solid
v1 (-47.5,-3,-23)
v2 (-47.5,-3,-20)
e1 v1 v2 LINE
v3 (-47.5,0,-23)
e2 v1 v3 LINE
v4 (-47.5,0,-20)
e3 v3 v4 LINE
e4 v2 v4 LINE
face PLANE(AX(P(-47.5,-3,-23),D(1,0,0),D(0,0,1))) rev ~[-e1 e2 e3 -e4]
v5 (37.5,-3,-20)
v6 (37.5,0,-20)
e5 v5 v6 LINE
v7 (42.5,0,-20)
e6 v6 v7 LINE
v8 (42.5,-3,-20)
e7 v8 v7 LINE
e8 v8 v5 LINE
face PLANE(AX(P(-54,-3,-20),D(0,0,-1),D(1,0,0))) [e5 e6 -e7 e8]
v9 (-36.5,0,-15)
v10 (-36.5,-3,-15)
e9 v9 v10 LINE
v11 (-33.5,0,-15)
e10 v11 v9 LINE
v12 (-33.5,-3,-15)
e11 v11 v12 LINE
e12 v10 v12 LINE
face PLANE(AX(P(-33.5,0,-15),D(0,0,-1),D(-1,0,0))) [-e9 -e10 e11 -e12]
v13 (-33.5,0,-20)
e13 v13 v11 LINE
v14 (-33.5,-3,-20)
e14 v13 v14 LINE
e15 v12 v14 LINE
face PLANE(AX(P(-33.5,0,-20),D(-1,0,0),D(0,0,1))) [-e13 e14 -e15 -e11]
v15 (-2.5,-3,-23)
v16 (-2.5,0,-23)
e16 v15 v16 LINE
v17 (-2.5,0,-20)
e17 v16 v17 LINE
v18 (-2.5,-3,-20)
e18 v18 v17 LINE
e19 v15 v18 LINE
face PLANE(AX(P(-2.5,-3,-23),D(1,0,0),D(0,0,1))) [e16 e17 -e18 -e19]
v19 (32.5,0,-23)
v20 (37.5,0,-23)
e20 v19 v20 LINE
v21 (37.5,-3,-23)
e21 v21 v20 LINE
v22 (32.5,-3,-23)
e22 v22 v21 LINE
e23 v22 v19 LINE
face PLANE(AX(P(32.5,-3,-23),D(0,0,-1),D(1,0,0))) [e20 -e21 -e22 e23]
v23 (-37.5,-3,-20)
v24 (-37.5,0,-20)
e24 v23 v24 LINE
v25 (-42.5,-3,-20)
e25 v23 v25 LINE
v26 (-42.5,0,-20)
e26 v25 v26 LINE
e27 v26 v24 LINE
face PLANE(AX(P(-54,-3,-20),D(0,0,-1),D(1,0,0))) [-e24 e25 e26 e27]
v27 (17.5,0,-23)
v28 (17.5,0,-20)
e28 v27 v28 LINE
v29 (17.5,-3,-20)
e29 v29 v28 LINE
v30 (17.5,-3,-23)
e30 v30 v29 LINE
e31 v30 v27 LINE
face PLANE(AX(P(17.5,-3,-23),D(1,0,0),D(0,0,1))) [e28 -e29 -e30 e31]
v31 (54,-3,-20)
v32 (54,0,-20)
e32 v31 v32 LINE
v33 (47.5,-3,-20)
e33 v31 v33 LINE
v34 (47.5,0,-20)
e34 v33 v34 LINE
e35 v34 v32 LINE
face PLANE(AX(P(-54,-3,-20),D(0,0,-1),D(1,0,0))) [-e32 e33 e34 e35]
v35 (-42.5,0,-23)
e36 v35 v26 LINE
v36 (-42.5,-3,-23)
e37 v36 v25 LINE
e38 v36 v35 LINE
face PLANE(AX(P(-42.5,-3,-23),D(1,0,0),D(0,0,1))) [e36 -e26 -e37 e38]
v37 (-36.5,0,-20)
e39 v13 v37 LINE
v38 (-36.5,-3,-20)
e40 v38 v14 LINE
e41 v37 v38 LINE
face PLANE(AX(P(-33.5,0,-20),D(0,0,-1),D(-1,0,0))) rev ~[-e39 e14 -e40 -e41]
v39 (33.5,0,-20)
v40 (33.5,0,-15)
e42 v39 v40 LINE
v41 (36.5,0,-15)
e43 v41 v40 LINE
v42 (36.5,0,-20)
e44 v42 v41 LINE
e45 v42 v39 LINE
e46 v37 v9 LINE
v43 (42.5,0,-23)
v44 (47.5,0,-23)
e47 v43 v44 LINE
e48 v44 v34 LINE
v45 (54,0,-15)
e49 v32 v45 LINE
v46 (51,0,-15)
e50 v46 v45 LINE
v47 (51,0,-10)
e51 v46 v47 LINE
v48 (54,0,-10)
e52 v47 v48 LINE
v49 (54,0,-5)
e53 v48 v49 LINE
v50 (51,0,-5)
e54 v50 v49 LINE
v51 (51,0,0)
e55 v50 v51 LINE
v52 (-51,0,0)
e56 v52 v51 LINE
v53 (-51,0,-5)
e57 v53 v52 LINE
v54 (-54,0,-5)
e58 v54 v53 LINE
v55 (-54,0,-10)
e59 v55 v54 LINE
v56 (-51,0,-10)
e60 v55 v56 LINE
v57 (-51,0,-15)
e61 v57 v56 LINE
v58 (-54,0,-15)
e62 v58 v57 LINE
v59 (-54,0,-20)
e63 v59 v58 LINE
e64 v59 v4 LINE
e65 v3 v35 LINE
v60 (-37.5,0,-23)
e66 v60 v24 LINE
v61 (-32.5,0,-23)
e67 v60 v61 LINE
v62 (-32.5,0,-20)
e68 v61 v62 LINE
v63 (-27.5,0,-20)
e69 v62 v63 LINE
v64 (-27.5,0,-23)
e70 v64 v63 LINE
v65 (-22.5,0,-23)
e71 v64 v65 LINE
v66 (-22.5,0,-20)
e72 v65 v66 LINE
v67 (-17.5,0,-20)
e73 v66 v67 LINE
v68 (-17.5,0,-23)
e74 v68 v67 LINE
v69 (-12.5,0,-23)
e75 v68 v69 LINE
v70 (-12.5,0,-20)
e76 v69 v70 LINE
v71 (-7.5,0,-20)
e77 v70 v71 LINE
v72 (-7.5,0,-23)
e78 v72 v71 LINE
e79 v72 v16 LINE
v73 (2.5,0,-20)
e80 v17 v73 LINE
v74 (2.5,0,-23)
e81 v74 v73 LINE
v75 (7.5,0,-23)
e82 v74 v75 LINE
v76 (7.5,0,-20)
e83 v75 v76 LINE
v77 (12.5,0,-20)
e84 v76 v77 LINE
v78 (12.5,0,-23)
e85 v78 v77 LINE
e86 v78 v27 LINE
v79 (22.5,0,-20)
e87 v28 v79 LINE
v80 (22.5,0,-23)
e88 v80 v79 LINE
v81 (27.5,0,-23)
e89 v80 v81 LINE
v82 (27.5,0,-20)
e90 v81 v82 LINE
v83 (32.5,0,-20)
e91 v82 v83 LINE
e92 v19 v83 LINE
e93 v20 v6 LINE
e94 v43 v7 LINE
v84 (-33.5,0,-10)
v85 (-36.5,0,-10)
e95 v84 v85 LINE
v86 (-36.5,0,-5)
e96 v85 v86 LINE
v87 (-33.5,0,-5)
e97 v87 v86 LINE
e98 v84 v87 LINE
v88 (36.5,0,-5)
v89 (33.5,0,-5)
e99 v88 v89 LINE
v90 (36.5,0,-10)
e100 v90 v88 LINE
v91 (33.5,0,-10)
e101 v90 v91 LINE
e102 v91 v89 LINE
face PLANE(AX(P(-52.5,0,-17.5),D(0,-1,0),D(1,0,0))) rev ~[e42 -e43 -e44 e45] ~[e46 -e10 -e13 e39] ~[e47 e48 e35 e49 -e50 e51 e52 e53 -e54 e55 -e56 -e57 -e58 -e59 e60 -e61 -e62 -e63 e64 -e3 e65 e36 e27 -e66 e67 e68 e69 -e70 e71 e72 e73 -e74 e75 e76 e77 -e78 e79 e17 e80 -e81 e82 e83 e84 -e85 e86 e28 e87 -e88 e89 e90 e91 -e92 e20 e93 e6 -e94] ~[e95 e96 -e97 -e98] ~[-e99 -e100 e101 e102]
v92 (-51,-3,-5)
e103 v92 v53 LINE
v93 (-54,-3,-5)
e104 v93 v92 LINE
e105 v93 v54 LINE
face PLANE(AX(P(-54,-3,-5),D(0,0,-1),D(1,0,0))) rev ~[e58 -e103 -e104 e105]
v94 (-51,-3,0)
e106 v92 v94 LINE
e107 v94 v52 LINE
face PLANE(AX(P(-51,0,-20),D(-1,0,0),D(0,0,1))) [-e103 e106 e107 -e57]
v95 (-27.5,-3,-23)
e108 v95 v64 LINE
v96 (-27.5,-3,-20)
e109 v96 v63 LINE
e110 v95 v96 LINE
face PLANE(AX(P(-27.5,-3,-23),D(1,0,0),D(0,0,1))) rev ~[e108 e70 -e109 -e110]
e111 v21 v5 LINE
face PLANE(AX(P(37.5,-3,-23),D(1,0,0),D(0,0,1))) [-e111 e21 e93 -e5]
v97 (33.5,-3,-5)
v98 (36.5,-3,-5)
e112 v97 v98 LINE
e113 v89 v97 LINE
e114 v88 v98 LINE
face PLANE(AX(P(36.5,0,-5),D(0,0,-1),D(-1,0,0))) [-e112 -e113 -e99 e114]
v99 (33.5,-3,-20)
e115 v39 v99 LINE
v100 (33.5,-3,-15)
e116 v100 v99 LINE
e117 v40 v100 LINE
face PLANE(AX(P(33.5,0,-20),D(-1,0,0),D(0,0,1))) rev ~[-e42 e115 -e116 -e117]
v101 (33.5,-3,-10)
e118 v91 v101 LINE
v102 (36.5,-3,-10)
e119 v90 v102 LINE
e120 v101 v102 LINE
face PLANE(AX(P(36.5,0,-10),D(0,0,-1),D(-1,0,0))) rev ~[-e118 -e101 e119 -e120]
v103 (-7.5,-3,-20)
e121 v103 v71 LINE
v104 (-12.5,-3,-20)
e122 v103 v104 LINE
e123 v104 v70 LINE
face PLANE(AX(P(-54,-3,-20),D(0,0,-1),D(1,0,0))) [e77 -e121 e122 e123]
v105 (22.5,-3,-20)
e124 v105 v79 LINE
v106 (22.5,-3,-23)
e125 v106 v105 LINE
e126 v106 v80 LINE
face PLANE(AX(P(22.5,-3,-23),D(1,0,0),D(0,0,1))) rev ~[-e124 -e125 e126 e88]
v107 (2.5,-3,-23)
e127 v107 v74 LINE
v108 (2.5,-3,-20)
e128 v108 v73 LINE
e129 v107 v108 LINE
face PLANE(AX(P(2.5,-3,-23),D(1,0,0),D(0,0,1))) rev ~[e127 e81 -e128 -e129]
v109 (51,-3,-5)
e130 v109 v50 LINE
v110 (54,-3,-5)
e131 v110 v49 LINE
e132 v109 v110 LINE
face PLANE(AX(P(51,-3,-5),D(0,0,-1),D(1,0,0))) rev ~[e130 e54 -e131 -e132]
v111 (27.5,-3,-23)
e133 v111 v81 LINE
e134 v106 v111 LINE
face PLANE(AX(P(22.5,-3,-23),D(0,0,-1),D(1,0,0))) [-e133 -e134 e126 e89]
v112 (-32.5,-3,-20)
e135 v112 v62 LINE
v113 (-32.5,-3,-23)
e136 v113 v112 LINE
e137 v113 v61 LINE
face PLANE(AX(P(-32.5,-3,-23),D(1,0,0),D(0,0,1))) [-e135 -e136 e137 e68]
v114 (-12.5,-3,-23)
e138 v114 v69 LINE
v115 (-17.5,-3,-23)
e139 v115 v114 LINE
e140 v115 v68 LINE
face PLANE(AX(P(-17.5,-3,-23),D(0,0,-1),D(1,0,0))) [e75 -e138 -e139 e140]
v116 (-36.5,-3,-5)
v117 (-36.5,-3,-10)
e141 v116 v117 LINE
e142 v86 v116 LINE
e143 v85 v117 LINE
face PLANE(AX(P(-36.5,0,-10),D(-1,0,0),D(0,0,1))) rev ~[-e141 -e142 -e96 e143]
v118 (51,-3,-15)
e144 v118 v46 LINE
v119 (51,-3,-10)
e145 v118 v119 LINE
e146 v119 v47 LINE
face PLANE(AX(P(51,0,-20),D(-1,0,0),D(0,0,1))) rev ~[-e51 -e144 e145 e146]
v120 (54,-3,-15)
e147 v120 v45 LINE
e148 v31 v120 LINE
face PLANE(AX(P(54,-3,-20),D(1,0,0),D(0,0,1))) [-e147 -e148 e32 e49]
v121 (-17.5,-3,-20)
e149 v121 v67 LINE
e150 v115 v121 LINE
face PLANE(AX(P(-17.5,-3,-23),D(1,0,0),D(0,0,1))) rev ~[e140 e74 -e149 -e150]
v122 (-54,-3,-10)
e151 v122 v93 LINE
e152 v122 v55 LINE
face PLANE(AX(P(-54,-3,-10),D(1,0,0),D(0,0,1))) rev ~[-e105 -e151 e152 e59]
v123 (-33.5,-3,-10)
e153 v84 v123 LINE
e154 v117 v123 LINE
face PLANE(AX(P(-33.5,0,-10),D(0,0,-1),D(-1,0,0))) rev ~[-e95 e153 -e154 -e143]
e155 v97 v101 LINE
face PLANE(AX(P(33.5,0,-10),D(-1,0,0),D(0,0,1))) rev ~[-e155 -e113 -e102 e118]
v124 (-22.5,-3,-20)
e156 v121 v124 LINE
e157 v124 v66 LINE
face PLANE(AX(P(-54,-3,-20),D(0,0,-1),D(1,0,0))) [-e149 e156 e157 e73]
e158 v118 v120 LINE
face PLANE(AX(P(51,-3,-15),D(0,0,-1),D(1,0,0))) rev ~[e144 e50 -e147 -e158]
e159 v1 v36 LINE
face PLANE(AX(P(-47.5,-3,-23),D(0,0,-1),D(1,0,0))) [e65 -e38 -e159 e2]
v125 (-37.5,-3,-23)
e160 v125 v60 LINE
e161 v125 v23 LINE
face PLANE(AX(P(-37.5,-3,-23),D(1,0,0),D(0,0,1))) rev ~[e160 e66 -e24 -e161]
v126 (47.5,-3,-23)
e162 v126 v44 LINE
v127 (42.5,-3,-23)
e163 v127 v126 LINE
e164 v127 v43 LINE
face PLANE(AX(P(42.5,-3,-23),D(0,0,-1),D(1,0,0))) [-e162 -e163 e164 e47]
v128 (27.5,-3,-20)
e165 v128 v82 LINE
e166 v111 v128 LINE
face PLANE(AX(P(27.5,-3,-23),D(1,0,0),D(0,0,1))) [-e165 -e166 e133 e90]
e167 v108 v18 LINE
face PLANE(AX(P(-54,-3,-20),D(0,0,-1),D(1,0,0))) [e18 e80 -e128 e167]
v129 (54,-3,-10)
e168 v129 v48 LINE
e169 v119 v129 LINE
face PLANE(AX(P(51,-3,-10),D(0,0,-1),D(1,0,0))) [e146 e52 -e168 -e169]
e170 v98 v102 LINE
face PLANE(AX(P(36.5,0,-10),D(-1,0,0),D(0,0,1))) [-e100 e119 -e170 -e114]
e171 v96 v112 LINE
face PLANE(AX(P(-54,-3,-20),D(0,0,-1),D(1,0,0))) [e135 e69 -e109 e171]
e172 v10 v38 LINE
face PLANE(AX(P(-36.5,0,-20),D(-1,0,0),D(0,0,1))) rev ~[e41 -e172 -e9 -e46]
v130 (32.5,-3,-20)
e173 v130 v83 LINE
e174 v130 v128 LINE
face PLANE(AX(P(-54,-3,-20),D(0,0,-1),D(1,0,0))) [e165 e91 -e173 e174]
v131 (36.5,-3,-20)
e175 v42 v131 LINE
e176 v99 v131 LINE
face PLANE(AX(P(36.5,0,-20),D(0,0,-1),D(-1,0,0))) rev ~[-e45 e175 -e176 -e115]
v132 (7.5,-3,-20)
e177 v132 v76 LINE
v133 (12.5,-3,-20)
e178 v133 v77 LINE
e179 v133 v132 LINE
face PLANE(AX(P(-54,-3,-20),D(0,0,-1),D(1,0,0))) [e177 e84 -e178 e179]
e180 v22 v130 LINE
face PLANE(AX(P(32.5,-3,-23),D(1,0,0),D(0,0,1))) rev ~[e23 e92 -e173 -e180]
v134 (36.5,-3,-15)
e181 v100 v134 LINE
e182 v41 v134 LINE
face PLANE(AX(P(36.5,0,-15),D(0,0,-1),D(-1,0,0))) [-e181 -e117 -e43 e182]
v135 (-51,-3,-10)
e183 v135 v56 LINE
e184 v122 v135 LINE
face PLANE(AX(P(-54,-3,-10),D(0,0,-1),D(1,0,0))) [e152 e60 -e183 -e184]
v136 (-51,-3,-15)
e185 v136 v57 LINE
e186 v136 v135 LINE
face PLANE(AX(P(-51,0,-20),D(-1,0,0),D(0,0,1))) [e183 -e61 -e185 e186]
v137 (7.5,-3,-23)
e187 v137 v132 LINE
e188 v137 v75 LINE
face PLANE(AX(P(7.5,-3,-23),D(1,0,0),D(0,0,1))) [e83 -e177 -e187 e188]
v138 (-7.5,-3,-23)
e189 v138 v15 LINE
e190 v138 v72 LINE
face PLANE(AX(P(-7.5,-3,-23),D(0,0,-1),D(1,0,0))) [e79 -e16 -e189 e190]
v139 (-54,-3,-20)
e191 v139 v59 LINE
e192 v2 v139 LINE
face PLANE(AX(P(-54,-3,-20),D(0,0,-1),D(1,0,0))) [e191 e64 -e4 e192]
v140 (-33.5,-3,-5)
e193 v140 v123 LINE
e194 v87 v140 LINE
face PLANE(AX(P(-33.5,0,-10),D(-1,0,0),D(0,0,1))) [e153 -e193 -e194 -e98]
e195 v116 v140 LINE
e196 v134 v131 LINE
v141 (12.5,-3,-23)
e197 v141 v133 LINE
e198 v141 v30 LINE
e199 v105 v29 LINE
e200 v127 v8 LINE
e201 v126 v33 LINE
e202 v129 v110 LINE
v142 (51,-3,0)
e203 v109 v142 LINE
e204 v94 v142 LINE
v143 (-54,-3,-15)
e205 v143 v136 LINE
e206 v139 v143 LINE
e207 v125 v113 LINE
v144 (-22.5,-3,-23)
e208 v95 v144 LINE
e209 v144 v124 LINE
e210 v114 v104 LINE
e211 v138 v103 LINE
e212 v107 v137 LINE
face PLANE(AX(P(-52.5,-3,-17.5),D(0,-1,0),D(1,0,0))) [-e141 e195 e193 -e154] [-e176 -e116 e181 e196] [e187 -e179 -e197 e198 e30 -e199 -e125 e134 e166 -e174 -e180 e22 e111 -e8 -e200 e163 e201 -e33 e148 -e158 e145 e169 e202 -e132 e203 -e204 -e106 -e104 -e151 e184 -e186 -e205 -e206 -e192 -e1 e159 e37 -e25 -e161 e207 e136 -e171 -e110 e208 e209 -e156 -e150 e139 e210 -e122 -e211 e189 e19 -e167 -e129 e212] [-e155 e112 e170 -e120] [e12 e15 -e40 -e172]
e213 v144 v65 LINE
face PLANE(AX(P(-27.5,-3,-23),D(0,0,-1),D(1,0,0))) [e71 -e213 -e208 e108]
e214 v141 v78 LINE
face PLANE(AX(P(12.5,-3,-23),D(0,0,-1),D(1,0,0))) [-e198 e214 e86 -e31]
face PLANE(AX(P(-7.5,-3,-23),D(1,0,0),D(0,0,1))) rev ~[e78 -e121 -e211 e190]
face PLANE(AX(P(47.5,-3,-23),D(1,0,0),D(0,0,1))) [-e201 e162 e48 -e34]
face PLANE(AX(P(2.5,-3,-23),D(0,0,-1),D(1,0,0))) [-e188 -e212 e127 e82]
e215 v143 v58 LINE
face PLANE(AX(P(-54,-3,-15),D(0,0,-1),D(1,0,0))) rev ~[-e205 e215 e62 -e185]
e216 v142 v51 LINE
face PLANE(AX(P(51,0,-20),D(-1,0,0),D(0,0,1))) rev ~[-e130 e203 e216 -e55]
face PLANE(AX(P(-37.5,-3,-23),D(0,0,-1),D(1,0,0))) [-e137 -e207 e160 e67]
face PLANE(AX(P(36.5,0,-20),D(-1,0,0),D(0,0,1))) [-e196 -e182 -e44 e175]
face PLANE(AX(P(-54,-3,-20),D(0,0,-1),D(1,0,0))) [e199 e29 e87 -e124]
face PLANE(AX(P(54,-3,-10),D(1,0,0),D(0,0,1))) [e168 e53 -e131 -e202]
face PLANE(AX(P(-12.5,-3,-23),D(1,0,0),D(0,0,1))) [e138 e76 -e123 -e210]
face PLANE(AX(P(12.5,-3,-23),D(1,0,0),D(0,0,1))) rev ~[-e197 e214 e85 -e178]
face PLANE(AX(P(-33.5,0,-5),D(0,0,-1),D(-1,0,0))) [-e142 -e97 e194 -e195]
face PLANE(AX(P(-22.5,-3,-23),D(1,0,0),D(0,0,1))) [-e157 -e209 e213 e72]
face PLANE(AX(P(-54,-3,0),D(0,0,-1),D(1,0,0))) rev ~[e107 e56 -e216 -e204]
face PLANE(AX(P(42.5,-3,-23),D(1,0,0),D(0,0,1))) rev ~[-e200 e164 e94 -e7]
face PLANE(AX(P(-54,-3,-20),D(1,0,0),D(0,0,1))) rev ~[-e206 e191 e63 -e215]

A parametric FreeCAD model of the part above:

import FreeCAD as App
import Part
import Sketcher
Q = App.Units.Quantity

doc = App.newDocument("Part")
params = doc.addObject("Spreadsheet::Sheet", "Params")
for row, (alias, value) in enumerate([
    ("sketch1_width", "102 mm"),
    ("sketch1_height", "40 mm"),
    ("pad1_length", "3 mm"),
    ("sketch2_width", "3 mm"),
    ("sketch2_height", "5 mm"),
    ("pad2_length", "3 mm"),
    ("sketch3_width", "5 mm"),
    ("sketch3_height", "3 mm"),
    ("pad3_length", "3 mm"),
    ("pocket1_length", "25 mm"),
    ("sketch5_width", "3 mm"),
    ("sketch5_height", "5 mm"),
    ("pocket2_length", "25 mm"),
], start=1):
    params.set(f"A{row}", alias)
    params.set(f"B{row}", "=" + value)
    params.setAlias(f"B{row}", alias)

body = doc.addObject("PartDesign::Body", "Body")

# Sketch on XZ plane
sketch1 = doc.addObject("Sketcher::SketchObject", "Sketch")
body.addObject(sketch1)
sketch1.AttachmentSupport = (doc.XZ_Plane, [""])
sketch1.MapMode = "FlatFace"
sketch1.addGeometry(Part.LineSegment(App.Vector(-51, 20, 0), App.Vector(-51, -20, 0)), False)
sketch1.addGeometry(Part.LineSegment(App.Vector(-51, -20, 0), App.Vector(51, -20, 0)), False)
sketch1.addGeometry(Part.LineSegment(App.Vector(51, -20, 0), App.Vector(51, 20, 0)), False)
sketch1.addGeometry(Part.LineSegment(App.Vector(51, 20, 0), App.Vector(-51, 20, 0)), False)
sketch1.addConstraint(Sketcher.Constraint("Coincident", 0, 2, 1, 1))
sketch1.addConstraint(Sketcher.Constraint("Coincident", 1, 2, 2, 1))
sketch1.addConstraint(Sketcher.Constraint("Coincident", 2, 2, 3, 1))
sketch1.addConstraint(Sketcher.Constraint("Coincident", 3, 2, 0, 1))
sketch1.addConstraint(Sketcher.Constraint("Vertical", 0))
sketch1.addConstraint(Sketcher.Constraint("Horizontal", 1))
sketch1.addConstraint(Sketcher.Constraint("Vertical", 2))
sketch1.addConstraint(Sketcher.Constraint("Horizontal", 3))
sketch1.addConstraint(Sketcher.Constraint("Symmetric", 0, 2, 2, 2, -1, 1))
sketch1.addConstraint(Sketcher.Constraint("DistanceX", 1, 1, 1, 2, Q("102 mm")))
sketch1.addConstraint(Sketcher.Constraint("DistanceY", 0, 2, 0, 1, Q("40 mm")))
sketch1.setExpression("Constraints[9]", "Params.sketch1_width")
sketch1.setExpression("Constraints[10]", "Params.sketch1_height")
pad1 = doc.addObject("PartDesign::Pad", "Pad")
body.addObject(pad1)
pad1.Profile = sketch1
pad1.setExpression("Length", "Params.pad1_length")

# Sketch on XZ plane
sketch2 = doc.addObject("Sketcher::SketchObject", "Sketch001")
body.addObject(sketch2)
sketch2.AttachmentSupport = (doc.XZ_Plane, [""])
sketch2.MapMode = "FlatFace"
sketch2.AttachmentOffset = App.Placement(App.Vector(0, 0, 3), App.Rotation())
sketch2.addGeometry(Part.LineSegment(App.Vector(-54, -15, 0), App.Vector(-54, -20, 0)), False)
sketch2.addGeometry(Part.LineSegment(App.Vector(-54, -20, 0), App.Vector(-51, -20, 0)), False)
sketch2.addGeometry(Part.LineSegment(App.Vector(-51, -20, 0), App.Vector(-51, -15, 0)), False)
sketch2.addGeometry(Part.LineSegment(App.Vector(-51, -15, 0), App.Vector(-54, -15, 0)), False)
sketch2.addGeometry(Part.LineSegment(App.Vector(-54, -5, 0), App.Vector(-54, -10, 0)), False)
sketch2.addGeometry(Part.LineSegment(App.Vector(-54, -10, 0), App.Vector(-51, -10, 0)), False)
sketch2.addGeometry(Part.LineSegment(App.Vector(-51, -10, 0), App.Vector(-51, -5, 0)), False)
sketch2.addGeometry(Part.LineSegment(App.Vector(-51, -5, 0), App.Vector(-54, -5, 0)), False)
sketch2.addGeometry(Part.LineSegment(App.Vector(-54, 5, 0), App.Vector(-54, 0, 0)), False)
sketch2.addGeometry(Part.LineSegment(App.Vector(-54, 0, 0), App.Vector(-51, 0, 0)), False)
sketch2.addGeometry(Part.LineSegment(App.Vector(-51, 0, 0), App.Vector(-51, 5, 0)), False)
sketch2.addGeometry(Part.LineSegment(App.Vector(-51, 5, 0), App.Vector(-54, 5, 0)), False)
sketch2.addGeometry(Part.LineSegment(App.Vector(-54, 15, 0), App.Vector(-54, 10, 0)), False)
sketch2.addGeometry(Part.LineSegment(App.Vector(-54, 10, 0), App.Vector(-51, 10, 0)), False)
sketch2.addGeometry(Part.LineSegment(App.Vector(-51, 10, 0), App.Vector(-51, 15, 0)), False)
sketch2.addGeometry(Part.LineSegment(App.Vector(-51, 15, 0), App.Vector(-54, 15, 0)), False)
sketch2.addGeometry(Part.LineSegment(App.Vector(51, -5, 0), App.Vector(51, -10, 0)), False)
sketch2.addGeometry(Part.LineSegment(App.Vector(51, -10, 0), App.Vector(54, -10, 0)), False)
sketch2.addGeometry(Part.LineSegment(App.Vector(54, -10, 0), App.Vector(54, -5, 0)), False)
sketch2.addGeometry(Part.LineSegment(App.Vector(54, -5, 0), App.Vector(51, -5, 0)), False)
sketch2.addGeometry(Part.LineSegment(App.Vector(51, -15, 0), App.Vector(51, -20, 0)), False)
sketch2.addGeometry(Part.LineSegment(App.Vector(51, -20, 0), App.Vector(54, -20, 0)), False)
sketch2.addGeometry(Part.LineSegment(App.Vector(54, -20, 0), App.Vector(54, -15, 0)), False)
sketch2.addGeometry(Part.LineSegment(App.Vector(54, -15, 0), App.Vector(51, -15, 0)), False)
sketch2.addGeometry(Part.LineSegment(App.Vector(51, 15, 0), App.Vector(51, 10, 0)), False)
sketch2.addGeometry(Part.LineSegment(App.Vector(51, 10, 0), App.Vector(54, 10, 0)), False)
sketch2.addGeometry(Part.LineSegment(App.Vector(54, 10, 0), App.Vector(54, 15, 0)), False)
sketch2.addGeometry(Part.LineSegment(App.Vector(54, 15, 0), App.Vector(51, 15, 0)), False)
sketch2.addGeometry(Part.LineSegment(App.Vector(51, 5, 0), App.Vector(51, 0, 0)), False)
sketch2.addGeometry(Part.LineSegment(App.Vector(51, 0, 0), App.Vector(54, 0, 0)), False)
sketch2.addGeometry(Part.LineSegment(App.Vector(54, 0, 0), App.Vector(54, 5, 0)), False)
sketch2.addGeometry(Part.LineSegment(App.Vector(54, 5, 0), App.Vector(51, 5, 0)), False)
sketch2.addConstraint(Sketcher.Constraint("Coincident", 0, 2, 1, 1))
sketch2.addConstraint(Sketcher.Constraint("Coincident", 1, 2, 2, 1))
sketch2.addConstraint(Sketcher.Constraint("Coincident", 2, 2, 3, 1))
sketch2.addConstraint(Sketcher.Constraint("Coincident", 3, 2, 0, 1))
sketch2.addConstraint(Sketcher.Constraint("Coincident", 4, 2, 5, 1))
sketch2.addConstraint(Sketcher.Constraint("Coincident", 5, 2, 6, 1))
sketch2.addConstraint(Sketcher.Constraint("Coincident", 6, 2, 7, 1))
sketch2.addConstraint(Sketcher.Constraint("Coincident", 7, 2, 4, 1))
sketch2.addConstraint(Sketcher.Constraint("Coincident", 8, 2, 9, 1))
sketch2.addConstraint(Sketcher.Constraint("Coincident", 9, 2, 10, 1))
sketch2.addConstraint(Sketcher.Constraint("Coincident", 10, 2, 11, 1))
sketch2.addConstraint(Sketcher.Constraint("Coincident", 11, 2, 8, 1))
sketch2.addConstraint(Sketcher.Constraint("Coincident", 12, 2, 13, 1))
sketch2.addConstraint(Sketcher.Constraint("Coincident", 13, 2, 14, 1))
sketch2.addConstraint(Sketcher.Constraint("Coincident", 14, 2, 15, 1))
sketch2.addConstraint(Sketcher.Constraint("Coincident", 15, 2, 12, 1))
sketch2.addConstraint(Sketcher.Constraint("Coincident", 16, 2, 17, 1))
sketch2.addConstraint(Sketcher.Constraint("Coincident", 17, 2, 18, 1))
sketch2.addConstraint(Sketcher.Constraint("Coincident", 18, 2, 19, 1))
sketch2.addConstraint(Sketcher.Constraint("Coincident", 19, 2, 16, 1))
sketch2.addConstraint(Sketcher.Constraint("Coincident", 20, 2, 21, 1))
sketch2.addConstraint(Sketcher.Constraint("Coincident", 21, 2, 22, 1))
sketch2.addConstraint(Sketcher.Constraint("Coincident", 22, 2, 23, 1))
sketch2.addConstraint(Sketcher.Constraint("Coincident", 23, 2, 20, 1))
sketch2.addConstraint(Sketcher.Constraint("Coincident", 24, 2, 25, 1))
sketch2.addConstraint(Sketcher.Constraint("Coincident", 25, 2, 26, 1))
sketch2.addConstraint(Sketcher.Constraint("Coincident", 26, 2, 27, 1))
sketch2.addConstraint(Sketcher.Constraint("Coincident", 27, 2, 24, 1))
sketch2.addConstraint(Sketcher.Constraint("Coincident", 28, 2, 29, 1))
sketch2.addConstraint(Sketcher.Constraint("Coincident", 29, 2, 30, 1))
sketch2.addConstraint(Sketcher.Constraint("Coincident", 30, 2, 31, 1))
sketch2.addConstraint(Sketcher.Constraint("Coincident", 31, 2, 28, 1))
sketch2.addConstraint(Sketcher.Constraint("Vertical", 0))
sketch2.addConstraint(Sketcher.Constraint("Horizontal", 1))
sketch2.addConstraint(Sketcher.Constraint("Vertical", 2))
sketch2.addConstraint(Sketcher.Constraint("Horizontal", 3))
sketch2.addConstraint(Sketcher.Constraint("Vertical", 4))
sketch2.addConstraint(Sketcher.Constraint("Horizontal", 5))
sketch2.addConstraint(Sketcher.Constraint("Vertical", 6))
sketch2.addConstraint(Sketcher.Constraint("Horizontal", 7))
sketch2.addConstraint(Sketcher.Constraint("Vertical", 8))
sketch2.addConstraint(Sketcher.Constraint("Horizontal", 9))
sketch2.addConstraint(Sketcher.Constraint("Vertical", 10))
sketch2.addConstraint(Sketcher.Constraint("Horizontal", 11))
sketch2.addConstraint(Sketcher.Constraint("Vertical", 12))
sketch2.addConstraint(Sketcher.Constraint("Horizontal", 13))
sketch2.addConstraint(Sketcher.Constraint("Vertical", 14))
sketch2.addConstraint(Sketcher.Constraint("Horizontal", 15))
sketch2.addConstraint(Sketcher.Constraint("Vertical", 16))
sketch2.addConstraint(Sketcher.Constraint("Horizontal", 17))
sketch2.addConstraint(Sketcher.Constraint("Vertical", 18))
sketch2.addConstraint(Sketcher.Constraint("Horizontal", 19))
sketch2.addConstraint(Sketcher.Constraint("Vertical", 20))
sketch2.addConstraint(Sketcher.Constraint("Horizontal", 21))
sketch2.addConstraint(Sketcher.Constraint("Vertical", 22))
sketch2.addConstraint(Sketcher.Constraint("Horizontal", 23))
sketch2.addConstraint(Sketcher.Constraint("Vertical", 24))
sketch2.addConstraint(Sketcher.Constraint("Horizontal", 25))
sketch2.addConstraint(Sketcher.Constraint("Vertical", 26))
sketch2.addConstraint(Sketcher.Constraint("Horizontal", 27))
sketch2.addConstraint(Sketcher.Constraint("Vertical", 28))
sketch2.addConstraint(Sketcher.Constraint("Horizontal", 29))
sketch2.addConstraint(Sketcher.Constraint("Vertical", 30))
sketch2.addConstraint(Sketcher.Constraint("Horizontal", 31))
sketch2.addConstraint(Sketcher.Constraint("Symmetric", 13, 2, 16, 2, -1, 1))
sketch2.addConstraint(Sketcher.Constraint("Symmetric", 11, 2, 18, 2, -1, 1))
sketch2.addConstraint(Sketcher.Constraint("Symmetric", 15, 2, 22, 2, -1, 1))
sketch2.addConstraint(Sketcher.Constraint("Symmetric", 5, 2, 24, 2, -1, 1))
sketch2.addConstraint(Sketcher.Constraint("Symmetric", 3, 2, 26, 2, -1, 1))
sketch2.addConstraint(Sketcher.Constraint("Symmetric", 9, 2, 28, 2, -1, 1))
sketch2.addConstraint(Sketcher.Constraint("Symmetric", 7, 2, 30, 2, -1, 1))
sketch2.addConstraint(Sketcher.Constraint("Symmetric", 5, 2, 16, 2, -2))
sketch2.addConstraint(Sketcher.Constraint("Symmetric", 7, 2, 18, 2, -2))
sketch2.addConstraint(Sketcher.Constraint("Symmetric", 1, 2, 20, 2, -2))
sketch2.addConstraint(Sketcher.Constraint("Symmetric", 3, 2, 22, 2, -2))
sketch2.addConstraint(Sketcher.Constraint("PointOnObject", 8, 2, -1))
sketch2.addConstraint(Sketcher.Constraint("Vertical", 3, 2, 4, 2))
sketch2.addConstraint(Sketcher.Constraint("Vertical", 2, 2, 5, 2))
sketch2.addConstraint(Sketcher.Constraint("Vertical", 6, 2, 9, 2))
sketch2.addConstraint(Sketcher.Constraint("Equal", 2, 4))
sketch2.addConstraint(Sketcher.Constraint("Equal", 6, 8))
sketch2.addConstraint(Sketcher.Constraint("Equal", 10, 12))
sketch2.addConstraint(Sketcher.Constraint("DistanceX", 1, 1, 1, 2, Q("3 mm")))
sketch2.addConstraint(Sketcher.Constraint("DistanceY", 0, 2, 0, 1, Q("5 mm")))
sketch2.addConstraint(Sketcher.Constraint("DistanceX", 0, 2, -1, 1, Q("54 mm")))
sketch2.setExpression("Constraints[82]", "Params.sketch2_width")
sketch2.setExpression("Constraints[83]", "Params.sketch2_height")
pad2 = doc.addObject("PartDesign::Pad", "Pad001")
body.addObject(pad2)
pad2.Profile = sketch2
pad2.setExpression("Length", "Params.pad2_length")
pad2.Reversed = True

# Sketch on XZ plane
sketch3 = doc.addObject("Sketcher::SketchObject", "Sketch002")
body.addObject(sketch3)
sketch3.AttachmentSupport = (doc.XZ_Plane, [""])
sketch3.MapMode = "FlatFace"
sketch3.AttachmentOffset = App.Placement(App.Vector(0, 0, 3), App.Rotation())
sketch3.addGeometry(Part.LineSegment(App.Vector(2.5, -20, 0), App.Vector(2.5, -23, 0)), False)
sketch3.addGeometry(Part.LineSegment(App.Vector(2.5, -23, 0), App.Vector(7.5, -23, 0)), False)
sketch3.addGeometry(Part.LineSegment(App.Vector(7.5, -23, 0), App.Vector(7.5, -20, 0)), False)
sketch3.addGeometry(Part.LineSegment(App.Vector(7.5, -20, 0), App.Vector(2.5, -20, 0)), False)
sketch3.addGeometry(Part.LineSegment(App.Vector(12.5, -20, 0), App.Vector(12.5, -23, 0)), False)
sketch3.addGeometry(Part.LineSegment(App.Vector(12.5, -23, 0), App.Vector(17.5, -23, 0)), False)
sketch3.addGeometry(Part.LineSegment(App.Vector(17.5, -23, 0), App.Vector(17.5, -20, 0)), False)
sketch3.addGeometry(Part.LineSegment(App.Vector(17.5, -20, 0), App.Vector(12.5, -20, 0)), False)
sketch3.addGeometry(Part.LineSegment(App.Vector(22.5, -20, 0), App.Vector(22.5, -23, 0)), False)
sketch3.addGeometry(Part.LineSegment(App.Vector(22.5, -23, 0), App.Vector(27.5, -23, 0)), False)
sketch3.addGeometry(Part.LineSegment(App.Vector(27.5, -23, 0), App.Vector(27.5, -20, 0)), False)
sketch3.addGeometry(Part.LineSegment(App.Vector(27.5, -20, 0), App.Vector(22.5, -20, 0)), False)
sketch3.addGeometry(Part.LineSegment(App.Vector(32.5, -20, 0), App.Vector(32.5, -23, 0)), False)
sketch3.addGeometry(Part.LineSegment(App.Vector(32.5, -23, 0), App.Vector(37.5, -23, 0)), False)
sketch3.addGeometry(Part.LineSegment(App.Vector(37.5, -23, 0), App.Vector(37.5, -20, 0)), False)
sketch3.addGeometry(Part.LineSegment(App.Vector(37.5, -20, 0), App.Vector(32.5, -20, 0)), False)
sketch3.addGeometry(Part.LineSegment(App.Vector(42.5, -20, 0), App.Vector(42.5, -23, 0)), False)
sketch3.addGeometry(Part.LineSegment(App.Vector(42.5, -23, 0), App.Vector(47.5, -23, 0)), False)
sketch3.addGeometry(Part.LineSegment(App.Vector(47.5, -23, 0), App.Vector(47.5, -20, 0)), False)
sketch3.addGeometry(Part.LineSegment(App.Vector(47.5, -20, 0), App.Vector(42.5, -20, 0)), False)
sketch3.addGeometry(Part.LineSegment(App.Vector(-27.5, -20, 0), App.Vector(-27.5, -23, 0)), False)
sketch3.addGeometry(Part.LineSegment(App.Vector(-27.5, -23, 0), App.Vector(-22.5, -23, 0)), False)
sketch3.addGeometry(Part.LineSegment(App.Vector(-22.5, -23, 0), App.Vector(-22.5, -20, 0)), False)
sketch3.addGeometry(Part.LineSegment(App.Vector(-22.5, -20, 0), App.Vector(-27.5, -20, 0)), False)
sketch3.addGeometry(Part.LineSegment(App.Vector(-17.5, -20, 0), App.Vector(-17.5, -23, 0)), False)
sketch3.addGeometry(Part.LineSegment(App.Vector(-17.5, -23, 0), App.Vector(-12.5, -23, 0)), False)
sketch3.addGeometry(Part.LineSegment(App.Vector(-12.5, -23, 0), App.Vector(-12.5, -20, 0)), False)
sketch3.addGeometry(Part.LineSegment(App.Vector(-12.5, -20, 0), App.Vector(-17.5, -20, 0)), False)
sketch3.addGeometry(Part.LineSegment(App.Vector(-7.5, -20, 0), App.Vector(-7.5, -23, 0)), False)
sketch3.addGeometry(Part.LineSegment(App.Vector(-7.5, -23, 0), App.Vector(-2.5, -23, 0)), False)
sketch3.addGeometry(Part.LineSegment(App.Vector(-2.5, -23, 0), App.Vector(-2.5, -20, 0)), False)
sketch3.addGeometry(Part.LineSegment(App.Vector(-2.5, -20, 0), App.Vector(-7.5, -20, 0)), False)
sketch3.addGeometry(Part.LineSegment(App.Vector(-37.5, -20, 0), App.Vector(-37.5, -23, 0)), False)
sketch3.addGeometry(Part.LineSegment(App.Vector(-37.5, -23, 0), App.Vector(-32.5, -23, 0)), False)
sketch3.addGeometry(Part.LineSegment(App.Vector(-32.5, -23, 0), App.Vector(-32.5, -20, 0)), False)
sketch3.addGeometry(Part.LineSegment(App.Vector(-32.5, -20, 0), App.Vector(-37.5, -20, 0)), False)
sketch3.addGeometry(Part.LineSegment(App.Vector(-47.5, -20, 0), App.Vector(-47.5, -23, 0)), False)
sketch3.addGeometry(Part.LineSegment(App.Vector(-47.5, -23, 0), App.Vector(-42.5, -23, 0)), False)
sketch3.addGeometry(Part.LineSegment(App.Vector(-42.5, -23, 0), App.Vector(-42.5, -20, 0)), False)
sketch3.addGeometry(Part.LineSegment(App.Vector(-42.5, -20, 0), App.Vector(-47.5, -20, 0)), False)
sketch3.addConstraint(Sketcher.Constraint("Coincident", 0, 2, 1, 1))
sketch3.addConstraint(Sketcher.Constraint("Coincident", 1, 2, 2, 1))
sketch3.addConstraint(Sketcher.Constraint("Coincident", 2, 2, 3, 1))
sketch3.addConstraint(Sketcher.Constraint("Coincident", 3, 2, 0, 1))
sketch3.addConstraint(Sketcher.Constraint("Coincident", 4, 2, 5, 1))
sketch3.addConstraint(Sketcher.Constraint("Coincident", 5, 2, 6, 1))
sketch3.addConstraint(Sketcher.Constraint("Coincident", 6, 2, 7, 1))
sketch3.addConstraint(Sketcher.Constraint("Coincident", 7, 2, 4, 1))
sketch3.addConstraint(Sketcher.Constraint("Coincident", 8, 2, 9, 1))
sketch3.addConstraint(Sketcher.Constraint("Coincident", 9, 2, 10, 1))
sketch3.addConstraint(Sketcher.Constraint("Coincident", 10, 2, 11, 1))
sketch3.addConstraint(Sketcher.Constraint("Coincident", 11, 2, 8, 1))
sketch3.addConstraint(Sketcher.Constraint("Coincident", 12, 2, 13, 1))
sketch3.addConstraint(Sketcher.Constraint("Coincident", 13, 2, 14, 1))
sketch3.addConstraint(Sketcher.Constraint("Coincident", 14, 2, 15, 1))
sketch3.addConstraint(Sketcher.Constraint("Coincident", 15, 2, 12, 1))
sketch3.addConstraint(Sketcher.Constraint("Coincident", 16, 2, 17, 1))
sketch3.addConstraint(Sketcher.Constraint("Coincident", 17, 2, 18, 1))
sketch3.addConstraint(Sketcher.Constraint("Coincident", 18, 2, 19, 1))
sketch3.addConstraint(Sketcher.Constraint("Coincident", 19, 2, 16, 1))
sketch3.addConstraint(Sketcher.Constraint("Coincident", 20, 2, 21, 1))
sketch3.addConstraint(Sketcher.Constraint("Coincident", 21, 2, 22, 1))
sketch3.addConstraint(Sketcher.Constraint("Coincident", 22, 2, 23, 1))
sketch3.addConstraint(Sketcher.Constraint("Coincident", 23, 2, 20, 1))
sketch3.addConstraint(Sketcher.Constraint("Coincident", 24, 2, 25, 1))
sketch3.addConstraint(Sketcher.Constraint("Coincident", 25, 2, 26, 1))
sketch3.addConstraint(Sketcher.Constraint("Coincident", 26, 2, 27, 1))
sketch3.addConstraint(Sketcher.Constraint("Coincident", 27, 2, 24, 1))
sketch3.addConstraint(Sketcher.Constraint("Coincident", 28, 2, 29, 1))
sketch3.addConstraint(Sketcher.Constraint("Coincident", 29, 2, 30, 1))
sketch3.addConstraint(Sketcher.Constraint("Coincident", 30, 2, 31, 1))
sketch3.addConstraint(Sketcher.Constraint("Coincident", 31, 2, 28, 1))
sketch3.addConstraint(Sketcher.Constraint("Coincident", 32, 2, 33, 1))
sketch3.addConstraint(Sketcher.Constraint("Coincident", 33, 2, 34, 1))
sketch3.addConstraint(Sketcher.Constraint("Coincident", 34, 2, 35, 1))
sketch3.addConstraint(Sketcher.Constraint("Coincident", 35, 2, 32, 1))
sketch3.addConstraint(Sketcher.Constraint("Coincident", 36, 2, 37, 1))
sketch3.addConstraint(Sketcher.Constraint("Coincident", 37, 2, 38, 1))
sketch3.addConstraint(Sketcher.Constraint("Coincident", 38, 2, 39, 1))
sketch3.addConstraint(Sketcher.Constraint("Coincident", 39, 2, 36, 1))
sketch3.addConstraint(Sketcher.Constraint("Vertical", 0))
sketch3.addConstraint(Sketcher.Constraint("Horizontal", 1))
sketch3.addConstraint(Sketcher.Constraint("Vertical", 2))
sketch3.addConstraint(Sketcher.Constraint("Horizontal", 3))
sketch3.addConstraint(Sketcher.Constraint("Vertical", 4))
sketch3.addConstraint(Sketcher.Constraint("Horizontal", 5))
sketch3.addConstraint(Sketcher.Constraint("Vertical", 6))
sketch3.addConstraint(Sketcher.Constraint("Horizontal", 7))
sketch3.addConstraint(Sketcher.Constraint("Vertical", 8))
sketch3.addConstraint(Sketcher.Constraint("Horizontal", 9))
sketch3.addConstraint(Sketcher.Constraint("Vertical", 10))
sketch3.addConstraint(Sketcher.Constraint("Horizontal", 11))
sketch3.addConstraint(Sketcher.Constraint("Vertical", 12))
sketch3.addConstraint(Sketcher.Constraint("Horizontal", 13))
sketch3.addConstraint(Sketcher.Constraint("Vertical", 14))
sketch3.addConstraint(Sketcher.Constraint("Horizontal", 15))
sketch3.addConstraint(Sketcher.Constraint("Vertical", 16))
sketch3.addConstraint(Sketcher.Constraint("Horizontal", 17))
sketch3.addConstraint(Sketcher.Constraint("Vertical", 18))
sketch3.addConstraint(Sketcher.Constraint("Horizontal", 19))
sketch3.addConstraint(Sketcher.Constraint("Vertical", 20))
sketch3.addConstraint(Sketcher.Constraint("Horizontal", 21))
sketch3.addConstraint(Sketcher.Constraint("Vertical", 22))
sketch3.addConstraint(Sketcher.Constraint("Horizontal", 23))
sketch3.addConstraint(Sketcher.Constraint("Vertical", 24))
sketch3.addConstraint(Sketcher.Constraint("Horizontal", 25))
sketch3.addConstraint(Sketcher.Constraint("Vertical", 26))
sketch3.addConstraint(Sketcher.Constraint("Horizontal", 27))
sketch3.addConstraint(Sketcher.Constraint("Vertical", 28))
sketch3.addConstraint(Sketcher.Constraint("Horizontal", 29))
sketch3.addConstraint(Sketcher.Constraint("Vertical", 30))
sketch3.addConstraint(Sketcher.Constraint("Horizontal", 31))
sketch3.addConstraint(Sketcher.Constraint("Vertical", 32))
sketch3.addConstraint(Sketcher.Constraint("Horizontal", 33))
sketch3.addConstraint(Sketcher.Constraint("Vertical", 34))
sketch3.addConstraint(Sketcher.Constraint("Horizontal", 35))
sketch3.addConstraint(Sketcher.Constraint("Vertical", 36))
sketch3.addConstraint(Sketcher.Constraint("Horizontal", 37))
sketch3.addConstraint(Sketcher.Constraint("Vertical", 38))
sketch3.addConstraint(Sketcher.Constraint("Horizontal", 39))
sketch3.addConstraint(Sketcher.Constraint("Symmetric", 9, 2, 20, 2, -2))
sketch3.addConstraint(Sketcher.Constraint("Symmetric", 11, 2, 22, 2, -2))
sketch3.addConstraint(Sketcher.Constraint("Symmetric", 5, 2, 24, 2, -2))
sketch3.addConstraint(Sketcher.Constraint("Symmetric", 7, 2, 26, 2, -2))
sketch3.addConstraint(Sketcher.Constraint("Symmetric", 1, 2, 28, 2, -2))
sketch3.addConstraint(Sketcher.Constraint("Symmetric", 3, 2, 30, 2, -2))
sketch3.addConstraint(Sketcher.Constraint("Symmetric", 13, 2, 32, 2, -2))
sketch3.addConstraint(Sketcher.Constraint("Symmetric", 15, 2, 34, 2, -2))
sketch3.addConstraint(Sketcher.Constraint("Symmetric", 17, 2, 36, 2, -2))
sketch3.addConstraint(Sketcher.Constraint("Symmetric", 19, 2, 38, 2, -2))
sketch3.addConstraint(Sketcher.Constraint("Horizontal", 1, 2, 4, 2))
sketch3.addConstraint(Sketcher.Constraint("Horizontal", 3, 2, 6, 2))
sketch3.addConstraint(Sketcher.Constraint("Horizontal", 5, 2, 8, 2))
sketch3.addConstraint(Sketcher.Constraint("Horizontal", 7, 2, 10, 2))
sketch3.addConstraint(Sketcher.Constraint("Horizontal", 9, 2, 12, 2))
sketch3.addConstraint(Sketcher.Constraint("Horizontal", 11, 2, 14, 2))
sketch3.addConstraint(Sketcher.Constraint("Horizontal", 13, 2, 16, 2))
sketch3.addConstraint(Sketcher.Constraint("Horizontal", 15, 2, 18, 2))
sketch3.addConstraint(Sketcher.Constraint("Equal", 3, 5))
sketch3.addConstraint(Sketcher.Constraint("Equal", 7, 9))
sketch3.addConstraint(Sketcher.Constraint("Equal", 11, 13))
sketch3.addConstraint(Sketcher.Constraint("Equal", 15, 17))
sketch3.addConstraint(Sketcher.Constraint("DistanceX", 1, 1, 1, 2, Q("5 mm")))
sketch3.addConstraint(Sketcher.Constraint("DistanceY", 0, 2, 0, 1, Q("3 mm")))
sketch3.addConstraint(Sketcher.Constraint("DistanceY", 0, 2, -1, 1, Q("23 mm")))
sketch3.addConstraint(Sketcher.Constraint("DistanceX", 1, 2, 4, 2, Q("5 mm")))
sketch3.addConstraint(Sketcher.Constraint("DistanceX", 5, 2, 8, 2, Q("5 mm")))
sketch3.addConstraint(Sketcher.Constraint("DistanceX", 9, 2, 12, 2, Q("5 mm")))
sketch3.addConstraint(Sketcher.Constraint("DistanceX", 13, 2, 16, 2, Q("5 mm")))
sketch3.addConstraint(Sketcher.Constraint("DistanceX", 20, 2, 0, 2, Q("30 mm")))
sketch3.setExpression("Constraints[102]", "Params.sketch3_width")
sketch3.setExpression("Constraints[103]", "Params.sketch3_height")
pad3 = doc.addObject("PartDesign::Pad", "Pad002")
body.addObject(pad3)
pad3.Profile = sketch3
pad3.setExpression("Length", "Params.pad3_length")
pad3.Reversed = True

# Sketch on XZ plane
sketch4 = doc.addObject("Sketcher::SketchObject", "Sketch003")
body.addObject(sketch4)
sketch4.AttachmentSupport = (doc.XZ_Plane, [""])
sketch4.MapMode = "FlatFace"
sketch4.AttachmentOffset = App.Placement(App.Vector(0, 0, 3), App.Rotation())
sketch4.addGeometry(Part.LineSegment(App.Vector(-54, 23, 0), App.Vector(-54, 0, 0)), False)
sketch4.addGeometry(Part.LineSegment(App.Vector(-54, 0, 0), App.Vector(60, 0, 0)), False)
sketch4.addGeometry(Part.LineSegment(App.Vector(60, 0, 0), App.Vector(60, 23, 0)), False)
sketch4.addGeometry(Part.LineSegment(App.Vector(60, 23, 0), App.Vector(-54, 23, 0)), False)
sketch4.addConstraint(Sketcher.Constraint("Coincident", 0, 2, 1, 1))
sketch4.addConstraint(Sketcher.Constraint("Coincident", 1, 2, 2, 1))
sketch4.addConstraint(Sketcher.Constraint("Coincident", 2, 2, 3, 1))
sketch4.addConstraint(Sketcher.Constraint("Coincident", 3, 2, 0, 1))
sketch4.addConstraint(Sketcher.Constraint("Vertical", 0))
sketch4.addConstraint(Sketcher.Constraint("Horizontal", 1))
sketch4.addConstraint(Sketcher.Constraint("Vertical", 2))
sketch4.addConstraint(Sketcher.Constraint("Horizontal", 3))
sketch4.addConstraint(Sketcher.Constraint("PointOnObject", 0, 2, -1))
sketch4.addConstraint(Sketcher.Constraint("DistanceX", 0, 2, -1, 1, Q("54 mm")))
sketch4.addConstraint(Sketcher.Constraint("DistanceX", 1, 1, 1, 2, Q("114.49237 mm")))
sketch4.addConstraint(Sketcher.Constraint("DistanceY", 0, 2, 0, 1, Q("23.447346 mm")))
pocket1 = doc.addObject("PartDesign::Pocket", "Pocket")
body.addObject(pocket1)
pocket1.Profile = sketch4
pocket1.setExpression("Length", "Params.pocket1_length")

# Sketch on XZ plane
sketch5 = doc.addObject("Sketcher::SketchObject", "Sketch004")
body.addObject(sketch5)
sketch5.AttachmentSupport = (doc.XZ_Plane, [""])
sketch5.MapMode = "FlatFace"
sketch5.addGeometry(Part.LineSegment(App.Vector(36.5, -15, 0), App.Vector(36.5, -20, 0)), False)
sketch5.addGeometry(Part.LineSegment(App.Vector(36.5, -20, 0), App.Vector(33.5, -20, 0)), False)
sketch5.addGeometry(Part.LineSegment(App.Vector(33.5, -20, 0), App.Vector(33.5, -15, 0)), False)
sketch5.addGeometry(Part.LineSegment(App.Vector(33.5, -15, 0), App.Vector(36.5, -15, 0)), False)
sketch5.addGeometry(Part.LineSegment(App.Vector(36.5, -5, 0), App.Vector(36.5, -10, 0)), False)
sketch5.addGeometry(Part.LineSegment(App.Vector(36.5, -10, 0), App.Vector(33.5, -10, 0)), False)
sketch5.addGeometry(Part.LineSegment(App.Vector(33.5, -10, 0), App.Vector(33.5, -5, 0)), False)
sketch5.addGeometry(Part.LineSegment(App.Vector(33.5, -5, 0), App.Vector(36.5, -5, 0)), False)
sketch5.addGeometry(Part.LineSegment(App.Vector(-33.5, -5, 0), App.Vector(-33.5, -10, 0)), False)
sketch5.addGeometry(Part.LineSegment(App.Vector(-33.5, -10, 0), App.Vector(-36.5, -10, 0)), False)
sketch5.addGeometry(Part.LineSegment(App.Vector(-36.5, -10, 0), App.Vector(-36.5, -5, 0)), False)
sketch5.addGeometry(Part.LineSegment(App.Vector(-36.5, -5, 0), App.Vector(-33.5, -5, 0)), False)
sketch5.addGeometry(Part.LineSegment(App.Vector(-33.5, -15, 0), App.Vector(-33.5, -20, 0)), False)
sketch5.addGeometry(Part.LineSegment(App.Vector(-33.5, -20, 0), App.Vector(-36.5, -20, 0)), False)
sketch5.addGeometry(Part.LineSegment(App.Vector(-36.5, -20, 0), App.Vector(-36.5, -15, 0)), False)
sketch5.addGeometry(Part.LineSegment(App.Vector(-36.5, -15, 0), App.Vector(-33.5, -15, 0)), False)
sketch5.addConstraint(Sketcher.Constraint("Coincident", 0, 2, 1, 1))
sketch5.addConstraint(Sketcher.Constraint("Coincident", 1, 2, 2, 1))
sketch5.addConstraint(Sketcher.Constraint("Coincident", 2, 2, 3, 1))
sketch5.addConstraint(Sketcher.Constraint("Coincident", 3, 2, 0, 1))
sketch5.addConstraint(Sketcher.Constraint("Coincident", 4, 2, 5, 1))
sketch5.addConstraint(Sketcher.Constraint("Coincident", 5, 2, 6, 1))
sketch5.addConstraint(Sketcher.Constraint("Coincident", 6, 2, 7, 1))
sketch5.addConstraint(Sketcher.Constraint("Coincident", 7, 2, 4, 1))
sketch5.addConstraint(Sketcher.Constraint("Coincident", 8, 2, 9, 1))
sketch5.addConstraint(Sketcher.Constraint("Coincident", 9, 2, 10, 1))
sketch5.addConstraint(Sketcher.Constraint("Coincident", 10, 2, 11, 1))
sketch5.addConstraint(Sketcher.Constraint("Coincident", 11, 2, 8, 1))
sketch5.addConstraint(Sketcher.Constraint("Coincident", 12, 2, 13, 1))
sketch5.addConstraint(Sketcher.Constraint("Coincident", 13, 2, 14, 1))
sketch5.addConstraint(Sketcher.Constraint("Coincident", 14, 2, 15, 1))
sketch5.addConstraint(Sketcher.Constraint("Coincident", 15, 2, 12, 1))
sketch5.addConstraint(Sketcher.Constraint("Vertical", 0))
sketch5.addConstraint(Sketcher.Constraint("Horizontal", 1))
sketch5.addConstraint(Sketcher.Constraint("Vertical", 2))
sketch5.addConstraint(Sketcher.Constraint("Horizontal", 3))
sketch5.addConstraint(Sketcher.Constraint("Vertical", 4))
sketch5.addConstraint(Sketcher.Constraint("Horizontal", 5))
sketch5.addConstraint(Sketcher.Constraint("Vertical", 6))
sketch5.addConstraint(Sketcher.Constraint("Horizontal", 7))
sketch5.addConstraint(Sketcher.Constraint("Vertical", 8))
sketch5.addConstraint(Sketcher.Constraint("Horizontal", 9))
sketch5.addConstraint(Sketcher.Constraint("Vertical", 10))
sketch5.addConstraint(Sketcher.Constraint("Horizontal", 11))
sketch5.addConstraint(Sketcher.Constraint("Vertical", 12))
sketch5.addConstraint(Sketcher.Constraint("Horizontal", 13))
sketch5.addConstraint(Sketcher.Constraint("Vertical", 14))
sketch5.addConstraint(Sketcher.Constraint("Horizontal", 15))
sketch5.addConstraint(Sketcher.Constraint("Symmetric", 5, 2, 8, 2, -2))
sketch5.addConstraint(Sketcher.Constraint("Symmetric", 7, 2, 10, 2, -2))
sketch5.addConstraint(Sketcher.Constraint("Symmetric", 1, 2, 12, 2, -2))
sketch5.addConstraint(Sketcher.Constraint("Symmetric", 3, 2, 14, 2, -2))
sketch5.addConstraint(Sketcher.Constraint("Vertical", 3, 2, 4, 2))
sketch5.addConstraint(Sketcher.Constraint("Vertical", 2, 2, 5, 2))
sketch5.addConstraint(Sketcher.Constraint("Equal", 2, 4))
sketch5.addConstraint(Sketcher.Constraint("DistanceX", 1, 2, 1, 1, Q("3 mm")))
sketch5.addConstraint(Sketcher.Constraint("DistanceY", 0, 2, 0, 1, Q("5 mm")))
sketch5.addConstraint(Sketcher.Constraint("DistanceY", 0, 2, -1, 1, Q("20 mm")))
sketch5.addConstraint(Sketcher.Constraint("DistanceY", 4, 2, -1, 1, Q("10 mm")))
sketch5.addConstraint(Sketcher.Constraint("DistanceX", 8, 2, 5, 2, Q("67 mm")))
sketch5.setExpression("Constraints[39]", "Params.sketch5_width")
sketch5.setExpression("Constraints[40]", "Params.sketch5_height")
pocket2 = doc.addObject("PartDesign::Pocket", "Pocket001")
body.addObject(pocket2)
pocket2.Profile = sketch5
pocket2.setExpression("Length", "Params.pocket2_length")
pocket2.Reversed = True

doc.recompute()
